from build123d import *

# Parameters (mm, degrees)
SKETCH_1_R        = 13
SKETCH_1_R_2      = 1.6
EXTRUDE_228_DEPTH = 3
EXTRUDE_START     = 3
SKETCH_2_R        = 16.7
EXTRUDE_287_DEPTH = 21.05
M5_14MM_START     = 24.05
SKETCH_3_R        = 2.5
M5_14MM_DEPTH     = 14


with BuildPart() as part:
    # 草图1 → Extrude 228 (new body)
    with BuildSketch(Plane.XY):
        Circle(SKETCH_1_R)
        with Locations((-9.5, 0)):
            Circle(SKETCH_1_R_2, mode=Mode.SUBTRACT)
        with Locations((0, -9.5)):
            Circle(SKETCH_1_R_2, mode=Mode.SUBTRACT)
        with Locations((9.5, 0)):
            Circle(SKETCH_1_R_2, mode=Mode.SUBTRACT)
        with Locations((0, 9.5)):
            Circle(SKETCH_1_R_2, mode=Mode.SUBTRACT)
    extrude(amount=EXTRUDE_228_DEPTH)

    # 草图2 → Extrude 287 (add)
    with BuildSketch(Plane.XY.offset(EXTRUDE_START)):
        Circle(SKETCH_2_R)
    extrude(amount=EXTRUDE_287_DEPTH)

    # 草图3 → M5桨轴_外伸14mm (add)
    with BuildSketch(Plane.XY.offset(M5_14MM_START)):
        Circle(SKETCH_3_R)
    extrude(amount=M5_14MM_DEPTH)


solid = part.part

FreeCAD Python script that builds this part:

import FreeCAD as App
import Part
import Sketcher

V = App.Vector

doc = App.newDocument("Part")
params = doc.addObject("Spreadsheet::Sheet", "Params")
for row, (alias, value) in enumerate([
    ("sketch1_diameter", "26 mm"),
    ("sketch1_diameter2", "3.2 mm"),
    ("pad1_length", "3 mm"),
    ("sketch2_diameter", "33.4 mm"),
    ("pad2_length", "21.05 mm"),
    ("sketch3_diameter", "5 mm"),
    ("pad3_length", "14 mm"),
], start=1):
    params.set(f"A{row}", alias)
    params.set(f"B{row}", "=" + value)
    params.setAlias(f"B{row}", alias)

body = doc.addObject("PartDesign::Body", "Body")

# Sketch on XY plane
sketch1 = body.newObject("Sketcher::SketchObject", "Sketch")
sketch1.AttachmentSupport = (doc.getObject("XY_Plane"), [""])
sketch1.MapMode = "FlatFace"
sketch1.addGeometry(Part.Circle(V(0, 0, 0), V(0, 0, 1), 13), False)
sketch1.addGeometry(Part.Circle(V(0, -9.5, 0), V(0, 0, 1), 1.6), False)
sketch1.addGeometry(Part.Circle(V(-9.5, 0, 0), V(0, 0, 1), 1.6), False)
sketch1.addGeometry(Part.Circle(V(9.5, 0, 0), V(0, 0, 1), 1.6), False)
sketch1.addGeometry(Part.Circle(V(0, 9.5, 0), V(0, 0, 1), 1.6), False)
sketch1.addConstraint(Sketcher.Constraint("Coincident", 0, 3, -1, 1))
sketch1.addConstraint(Sketcher.Constraint("Equal", 1, 2))
sketch1.addConstraint(Sketcher.Constraint("Equal", 2, 3))
sketch1.addConstraint(Sketcher.Constraint("Equal", 3, 4))
sketch1.addConstraint(Sketcher.Constraint("Symmetric", 2, 3, 3, 3, -1, 1))
sketch1.addConstraint(Sketcher.Constraint("Symmetric", 1, 3, 4, 3, -1, 1))
sketch1.addConstraint(Sketcher.Constraint("PointOnObject", 1, 3, -2))
sketch1.addConstraint(Sketcher.Constraint("PointOnObject", 2, 3, -1))
sketch1.addConstraint(Sketcher.Constraint("Diameter", 0, 26.0))
sketch1.addConstraint(Sketcher.Constraint("Diameter", 1, 3.2))
sketch1.addConstraint(Sketcher.Constraint("DistanceX", 2, 3, 3, 3, 19.0))
sketch1.addConstraint(Sketcher.Constraint("DistanceY", 1, 3, 4, 3, 19.0))
sketch1.setExpression("Constraints[8]", "Params.sketch1_diameter")
sketch1.setExpression("Constraints[9]", "Params.sketch1_diameter2")
pad1 = body.newObject("PartDesign::Pad", "Pad")
pad1.Profile = sketch1
pad1.setExpression("Length", "Params.pad1_length")

# Sketch on XY plane
sketch2 = body.newObject("Sketcher::SketchObject", "Sketch001")
sketch2.AttachmentSupport = (doc.getObject("XY_Plane"), [""])
sketch2.MapMode = "FlatFace"
sketch2.AttachmentOffset = App.Placement(V(0, 0, 3), App.Rotation())
sketch2.addGeometry(Part.Circle(V(0, 0, 0), V(0, 0, 1), 17), False)
sketch2.addConstraint(Sketcher.Constraint("Coincident", 0, 3, -1, 1))
sketch2.addConstraint(Sketcher.Constraint("Diameter", 0, 33.4))
sketch2.setExpression("Constraints[1]", "Params.sketch2_diameter")
pad2 = body.newObject("PartDesign::Pad", "Pad001")
pad2.Profile = sketch2
pad2.setExpression("Length", "Params.pad2_length")

# Sketch on XY plane
sketch3 = body.newObject("Sketcher::SketchObject", "Sketch002")
sketch3.AttachmentSupport = (doc.getObject("XY_Plane"), [""])
sketch3.MapMode = "FlatFace"
sketch3.AttachmentOffset = App.Placement(V(0, 0, 24.05), App.Rotation())
sketch3.addGeometry(Part.Circle(V(0, 0, 0), V(0, 0, 1), 2.5), False)
sketch3.addConstraint(Sketcher.Constraint("Coincident", 0, 3, -1, 1))
sketch3.addConstraint(Sketcher.Constraint("Diameter", 0, 5.0))
sketch3.setExpression("Constraints[1]", "Params.sketch3_diameter")
pad3 = body.newObject("PartDesign::Pad", "Pad002")
pad3.Profile = sketch3
pad3.setExpression("Length", "Params.pad3_length")

doc.recompute()
